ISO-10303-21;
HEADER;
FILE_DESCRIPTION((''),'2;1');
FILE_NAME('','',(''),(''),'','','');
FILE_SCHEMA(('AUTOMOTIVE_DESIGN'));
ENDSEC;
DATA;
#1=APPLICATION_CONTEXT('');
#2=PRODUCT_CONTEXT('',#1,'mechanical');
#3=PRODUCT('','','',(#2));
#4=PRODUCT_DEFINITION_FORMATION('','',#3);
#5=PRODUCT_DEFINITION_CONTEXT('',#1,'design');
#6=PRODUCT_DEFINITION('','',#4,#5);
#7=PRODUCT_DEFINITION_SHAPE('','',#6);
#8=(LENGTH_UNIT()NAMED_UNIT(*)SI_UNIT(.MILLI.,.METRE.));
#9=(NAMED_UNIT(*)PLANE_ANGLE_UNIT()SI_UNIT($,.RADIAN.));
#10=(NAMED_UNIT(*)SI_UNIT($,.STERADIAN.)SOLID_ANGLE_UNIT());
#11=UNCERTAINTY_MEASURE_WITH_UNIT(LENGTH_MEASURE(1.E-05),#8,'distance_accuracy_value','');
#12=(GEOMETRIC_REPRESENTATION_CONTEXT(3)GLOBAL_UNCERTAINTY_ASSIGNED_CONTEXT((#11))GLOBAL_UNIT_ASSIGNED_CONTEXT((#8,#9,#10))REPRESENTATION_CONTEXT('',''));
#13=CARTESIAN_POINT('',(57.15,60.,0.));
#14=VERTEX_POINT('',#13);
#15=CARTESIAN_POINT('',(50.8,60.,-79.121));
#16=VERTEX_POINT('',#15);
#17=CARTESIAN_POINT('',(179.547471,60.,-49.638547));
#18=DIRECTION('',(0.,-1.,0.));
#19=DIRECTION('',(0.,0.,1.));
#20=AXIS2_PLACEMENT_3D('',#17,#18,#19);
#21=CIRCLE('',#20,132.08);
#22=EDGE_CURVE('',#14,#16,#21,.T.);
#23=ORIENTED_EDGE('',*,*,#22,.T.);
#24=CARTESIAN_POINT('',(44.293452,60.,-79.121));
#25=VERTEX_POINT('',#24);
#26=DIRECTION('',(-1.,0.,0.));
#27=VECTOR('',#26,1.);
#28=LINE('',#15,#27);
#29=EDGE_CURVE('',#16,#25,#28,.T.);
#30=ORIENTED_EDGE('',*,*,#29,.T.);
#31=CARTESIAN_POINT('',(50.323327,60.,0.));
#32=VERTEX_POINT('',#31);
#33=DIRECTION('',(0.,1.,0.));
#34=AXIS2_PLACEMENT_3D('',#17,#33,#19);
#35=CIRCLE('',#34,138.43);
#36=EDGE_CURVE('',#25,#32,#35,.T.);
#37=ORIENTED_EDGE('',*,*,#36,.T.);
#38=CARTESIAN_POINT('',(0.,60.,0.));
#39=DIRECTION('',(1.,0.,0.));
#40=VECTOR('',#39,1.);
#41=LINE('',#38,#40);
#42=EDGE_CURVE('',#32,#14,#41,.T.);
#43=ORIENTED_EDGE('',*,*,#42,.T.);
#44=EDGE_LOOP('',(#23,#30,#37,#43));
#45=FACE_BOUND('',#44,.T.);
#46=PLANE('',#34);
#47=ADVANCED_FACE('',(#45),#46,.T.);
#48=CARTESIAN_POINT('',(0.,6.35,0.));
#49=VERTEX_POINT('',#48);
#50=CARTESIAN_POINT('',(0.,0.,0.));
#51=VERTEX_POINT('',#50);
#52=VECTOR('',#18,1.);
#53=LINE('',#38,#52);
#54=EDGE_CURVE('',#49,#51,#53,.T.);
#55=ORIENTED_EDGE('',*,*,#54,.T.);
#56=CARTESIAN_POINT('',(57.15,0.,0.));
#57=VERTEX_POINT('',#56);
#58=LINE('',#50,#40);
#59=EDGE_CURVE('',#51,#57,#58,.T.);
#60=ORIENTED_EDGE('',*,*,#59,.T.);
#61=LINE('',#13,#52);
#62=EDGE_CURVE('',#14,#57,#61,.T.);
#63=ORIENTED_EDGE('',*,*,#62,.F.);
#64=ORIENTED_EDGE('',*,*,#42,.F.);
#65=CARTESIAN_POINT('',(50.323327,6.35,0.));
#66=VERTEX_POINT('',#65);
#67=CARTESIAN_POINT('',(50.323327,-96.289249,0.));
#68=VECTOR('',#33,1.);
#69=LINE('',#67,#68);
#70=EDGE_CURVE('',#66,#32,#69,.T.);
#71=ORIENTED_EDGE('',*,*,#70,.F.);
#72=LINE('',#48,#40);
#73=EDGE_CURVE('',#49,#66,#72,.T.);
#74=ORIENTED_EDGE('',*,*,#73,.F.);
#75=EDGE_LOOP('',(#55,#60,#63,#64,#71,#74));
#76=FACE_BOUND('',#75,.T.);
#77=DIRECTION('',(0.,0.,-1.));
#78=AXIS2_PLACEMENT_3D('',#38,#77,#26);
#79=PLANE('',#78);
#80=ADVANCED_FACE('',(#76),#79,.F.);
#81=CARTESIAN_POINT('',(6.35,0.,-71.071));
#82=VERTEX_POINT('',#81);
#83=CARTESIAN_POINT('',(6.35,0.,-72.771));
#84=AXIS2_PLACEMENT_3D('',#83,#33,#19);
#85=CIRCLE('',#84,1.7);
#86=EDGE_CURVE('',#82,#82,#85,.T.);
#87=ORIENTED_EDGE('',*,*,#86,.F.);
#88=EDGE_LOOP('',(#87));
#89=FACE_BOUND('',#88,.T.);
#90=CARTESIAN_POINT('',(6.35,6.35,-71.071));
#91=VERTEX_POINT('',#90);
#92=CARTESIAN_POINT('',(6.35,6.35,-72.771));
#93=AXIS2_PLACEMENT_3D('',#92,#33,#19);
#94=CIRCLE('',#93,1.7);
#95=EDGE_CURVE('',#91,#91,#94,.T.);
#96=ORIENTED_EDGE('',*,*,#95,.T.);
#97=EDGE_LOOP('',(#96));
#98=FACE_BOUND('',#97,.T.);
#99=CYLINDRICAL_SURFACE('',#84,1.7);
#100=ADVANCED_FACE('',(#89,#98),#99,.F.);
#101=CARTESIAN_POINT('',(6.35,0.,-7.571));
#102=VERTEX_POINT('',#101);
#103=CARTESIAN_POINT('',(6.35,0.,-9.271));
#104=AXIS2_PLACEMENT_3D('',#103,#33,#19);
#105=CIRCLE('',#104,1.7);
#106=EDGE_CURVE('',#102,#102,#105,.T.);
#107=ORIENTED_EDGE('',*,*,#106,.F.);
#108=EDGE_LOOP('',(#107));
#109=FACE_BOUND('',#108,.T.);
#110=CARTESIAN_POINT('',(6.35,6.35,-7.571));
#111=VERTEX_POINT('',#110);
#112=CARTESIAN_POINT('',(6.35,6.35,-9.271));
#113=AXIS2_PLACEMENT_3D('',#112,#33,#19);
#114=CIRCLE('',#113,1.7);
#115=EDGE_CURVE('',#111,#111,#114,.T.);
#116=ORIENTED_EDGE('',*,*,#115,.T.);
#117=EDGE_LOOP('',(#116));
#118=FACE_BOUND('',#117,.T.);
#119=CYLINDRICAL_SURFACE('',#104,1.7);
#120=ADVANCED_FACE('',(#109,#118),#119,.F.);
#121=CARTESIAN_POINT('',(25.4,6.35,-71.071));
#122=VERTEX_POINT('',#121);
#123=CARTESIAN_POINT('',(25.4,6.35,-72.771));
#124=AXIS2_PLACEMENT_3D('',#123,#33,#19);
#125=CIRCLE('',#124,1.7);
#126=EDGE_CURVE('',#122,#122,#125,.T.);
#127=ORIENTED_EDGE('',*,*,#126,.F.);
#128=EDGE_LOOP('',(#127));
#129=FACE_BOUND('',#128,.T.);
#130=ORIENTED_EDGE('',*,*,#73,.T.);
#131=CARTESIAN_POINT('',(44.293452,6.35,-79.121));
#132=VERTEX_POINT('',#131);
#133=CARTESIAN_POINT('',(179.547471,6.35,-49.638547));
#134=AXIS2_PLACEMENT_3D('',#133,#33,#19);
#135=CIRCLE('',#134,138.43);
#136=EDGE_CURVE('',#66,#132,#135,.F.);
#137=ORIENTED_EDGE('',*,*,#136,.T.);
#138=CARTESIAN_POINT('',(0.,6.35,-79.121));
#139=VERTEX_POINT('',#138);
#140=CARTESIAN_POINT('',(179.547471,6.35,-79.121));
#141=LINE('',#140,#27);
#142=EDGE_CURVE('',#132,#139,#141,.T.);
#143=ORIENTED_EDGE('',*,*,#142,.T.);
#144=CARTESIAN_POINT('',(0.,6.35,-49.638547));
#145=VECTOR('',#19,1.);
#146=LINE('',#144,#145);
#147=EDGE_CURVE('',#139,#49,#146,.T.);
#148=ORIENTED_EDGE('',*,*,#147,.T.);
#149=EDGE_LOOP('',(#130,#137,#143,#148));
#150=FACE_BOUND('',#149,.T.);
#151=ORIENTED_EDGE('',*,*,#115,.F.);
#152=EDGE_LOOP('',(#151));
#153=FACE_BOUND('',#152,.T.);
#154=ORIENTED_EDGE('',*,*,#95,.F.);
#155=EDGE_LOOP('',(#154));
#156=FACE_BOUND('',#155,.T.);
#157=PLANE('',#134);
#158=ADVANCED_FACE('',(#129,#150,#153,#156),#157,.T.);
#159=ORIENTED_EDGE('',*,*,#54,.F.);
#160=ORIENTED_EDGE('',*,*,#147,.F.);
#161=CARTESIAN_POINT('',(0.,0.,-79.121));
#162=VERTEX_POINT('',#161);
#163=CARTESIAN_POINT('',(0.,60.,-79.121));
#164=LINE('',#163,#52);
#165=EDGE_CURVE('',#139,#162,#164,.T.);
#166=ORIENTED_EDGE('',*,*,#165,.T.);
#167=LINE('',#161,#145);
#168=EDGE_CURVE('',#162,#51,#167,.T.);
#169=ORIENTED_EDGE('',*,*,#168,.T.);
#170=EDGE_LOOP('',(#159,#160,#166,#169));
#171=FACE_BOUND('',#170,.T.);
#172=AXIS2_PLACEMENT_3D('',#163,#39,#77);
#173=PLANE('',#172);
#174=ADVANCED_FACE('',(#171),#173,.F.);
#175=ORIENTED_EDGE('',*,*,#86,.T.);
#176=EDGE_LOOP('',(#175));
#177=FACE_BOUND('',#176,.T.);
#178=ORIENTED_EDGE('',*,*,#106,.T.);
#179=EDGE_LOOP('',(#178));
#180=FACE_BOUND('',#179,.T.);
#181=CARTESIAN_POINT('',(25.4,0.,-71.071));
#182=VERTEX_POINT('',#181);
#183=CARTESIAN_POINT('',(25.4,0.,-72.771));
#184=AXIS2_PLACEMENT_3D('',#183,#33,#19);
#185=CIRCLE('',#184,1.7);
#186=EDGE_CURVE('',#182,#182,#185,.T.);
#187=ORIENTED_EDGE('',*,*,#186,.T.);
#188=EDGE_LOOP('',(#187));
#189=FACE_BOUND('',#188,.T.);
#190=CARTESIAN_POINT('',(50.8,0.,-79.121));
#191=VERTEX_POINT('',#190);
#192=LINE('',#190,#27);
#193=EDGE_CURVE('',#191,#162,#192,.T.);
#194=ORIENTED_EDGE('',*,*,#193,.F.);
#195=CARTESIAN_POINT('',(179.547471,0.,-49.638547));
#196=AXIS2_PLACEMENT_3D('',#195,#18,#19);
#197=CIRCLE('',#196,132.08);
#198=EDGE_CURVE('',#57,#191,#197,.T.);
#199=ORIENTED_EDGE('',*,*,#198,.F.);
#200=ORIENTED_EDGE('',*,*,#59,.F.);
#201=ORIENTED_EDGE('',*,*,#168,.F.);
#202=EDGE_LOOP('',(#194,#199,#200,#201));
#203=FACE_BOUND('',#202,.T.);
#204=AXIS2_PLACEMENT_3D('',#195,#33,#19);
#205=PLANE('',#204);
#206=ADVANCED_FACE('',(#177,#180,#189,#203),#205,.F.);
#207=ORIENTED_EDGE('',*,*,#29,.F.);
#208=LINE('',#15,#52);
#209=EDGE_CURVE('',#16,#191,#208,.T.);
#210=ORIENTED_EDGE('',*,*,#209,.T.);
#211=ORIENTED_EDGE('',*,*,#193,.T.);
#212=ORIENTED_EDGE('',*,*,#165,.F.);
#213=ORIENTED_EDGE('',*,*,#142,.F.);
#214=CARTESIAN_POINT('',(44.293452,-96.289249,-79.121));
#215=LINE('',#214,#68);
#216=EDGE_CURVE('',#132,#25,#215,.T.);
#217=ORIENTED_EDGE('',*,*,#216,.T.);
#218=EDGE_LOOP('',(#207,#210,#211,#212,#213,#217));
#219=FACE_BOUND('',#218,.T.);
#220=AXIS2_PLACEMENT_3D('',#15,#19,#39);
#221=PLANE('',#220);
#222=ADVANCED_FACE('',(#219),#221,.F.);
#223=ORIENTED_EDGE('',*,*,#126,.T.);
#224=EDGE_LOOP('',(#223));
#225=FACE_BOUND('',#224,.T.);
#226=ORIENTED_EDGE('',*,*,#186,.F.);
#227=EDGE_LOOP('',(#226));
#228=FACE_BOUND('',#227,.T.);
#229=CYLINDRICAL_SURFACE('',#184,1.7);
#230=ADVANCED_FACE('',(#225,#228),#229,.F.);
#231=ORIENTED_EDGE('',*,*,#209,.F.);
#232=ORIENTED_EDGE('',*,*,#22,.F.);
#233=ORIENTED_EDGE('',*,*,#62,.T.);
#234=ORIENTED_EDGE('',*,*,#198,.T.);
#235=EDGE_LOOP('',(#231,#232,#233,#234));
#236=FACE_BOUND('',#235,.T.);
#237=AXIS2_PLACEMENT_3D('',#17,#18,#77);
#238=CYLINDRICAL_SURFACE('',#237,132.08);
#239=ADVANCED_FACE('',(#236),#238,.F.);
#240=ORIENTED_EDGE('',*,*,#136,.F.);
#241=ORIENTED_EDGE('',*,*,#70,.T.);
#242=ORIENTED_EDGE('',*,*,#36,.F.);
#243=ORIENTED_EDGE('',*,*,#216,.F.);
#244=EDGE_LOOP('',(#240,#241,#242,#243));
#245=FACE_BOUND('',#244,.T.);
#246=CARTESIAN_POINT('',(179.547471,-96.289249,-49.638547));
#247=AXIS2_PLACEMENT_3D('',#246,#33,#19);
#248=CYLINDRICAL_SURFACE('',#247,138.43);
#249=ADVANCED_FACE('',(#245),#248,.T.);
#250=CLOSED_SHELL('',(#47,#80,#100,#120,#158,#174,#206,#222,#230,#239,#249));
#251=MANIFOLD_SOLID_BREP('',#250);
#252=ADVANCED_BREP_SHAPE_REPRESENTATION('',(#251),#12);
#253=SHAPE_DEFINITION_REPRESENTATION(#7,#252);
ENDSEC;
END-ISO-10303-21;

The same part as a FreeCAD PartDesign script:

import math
import FreeCAD as App
import Part
import Sketcher
Q = App.Units.Quantity

doc = App.newDocument("Part")
body = doc.addObject("PartDesign::Body", "Body")

# Sketch on XZ plane
sketch1 = body.newObject("Sketcher::SketchObject", "Sketch")
sketch1.AttachmentSupport = (doc.getObject("XZ_Plane"), [""])
sketch1.MapMode = "FlatFace"
sketch1.addGeometry(Part.LineSegment(App.Vector(51, -79, 0), App.Vector(0, -79, 0)), False)
sketch1.addGeometry(Part.LineSegment(App.Vector(0, -79, 0), App.Vector(0, 0, 0)), False)
sketch1.addGeometry(Part.LineSegment(App.Vector(0, 0, 0), App.Vector(57, 0, 0)), False)
sketch1.addGeometry(Part.ArcOfCircle(Part.Circle(App.Vector(180, -50, 0), App.Vector(0, 0, 1), 132), math.radians(158), math.radians(193)), False)
sketch1.addConstraint(Sketcher.Constraint("Coincident", 0, 2, 1, 1))
sketch1.addConstraint(Sketcher.Constraint("Coincident", 1, 2, 2, 1))
sketch1.addConstraint(Sketcher.Constraint("Coincident", 2, 2, 3, 1))
sketch1.addConstraint(Sketcher.Constraint("Coincident", 3, 2, 0, 1))
sketch1.addConstraint(Sketcher.Constraint("Horizontal", 0))
sketch1.addConstraint(Sketcher.Constraint("Vertical", 1))
sketch1.addConstraint(Sketcher.Constraint("Horizontal", 2))
sketch1.addConstraint(Sketcher.Constraint("Coincident", 1, 2, -1, 1))
sketch1.addConstraint(Sketcher.Constraint("Radius", 3, Q("5.2 in")))
sketch1.addConstraint(Sketcher.Constraint("DistanceX", 0, 2, 0, 1, Q("2 in")))
sketch1.addConstraint(Sketcher.Constraint("DistanceX", 2, 1, 2, 2, Q("2.25 in")))
sketch1.addConstraint(Sketcher.Constraint("DistanceY", 1, 1, 1, 2, Q("3.115 in")))
pad1 = body.newObject("PartDesign::Pad", "Pad")
pad1.Profile = sketch1
pad1.Length = 60
pad1.Reversed = True

# Sketch on XZ plane
sketch2 = body.newObject("Sketcher::SketchObject", "Sketch001")
sketch2.AttachmentSupport = (doc.getObject("XZ_Plane"), [""])
sketch2.MapMode = "FlatFace"
sketch2.AttachmentOffset = App.Placement(App.Vector(0, 0, -60), App.Rotation())
sketch2.addGeometry(Part.LineSegment(App.Vector(0, 0, 0), App.Vector(51, 2, 0)), False)
sketch2.addGeometry(Part.ArcOfCircle(Part.Circle(App.Vector(180, -50, 0), App.Vector(0, 0, 1), 138), math.radians(158), math.radians(192)), False)
sketch2.addGeometry(Part.LineSegment(App.Vector(44, -79, 0), App.Vector(0, -79, 0)), False)
sketch2.addGeometry(Part.LineSegment(App.Vector(0, -79, 0), App.Vector(0, 0, 0)), False)
sketch2.addConstraint(Sketcher.Constraint("Coincident", 0, 2, 1, 1))
sketch2.addConstraint(Sketcher.Constraint("Coincident", 1, 2, 2, 1))
sketch2.addConstraint(Sketcher.Constraint("Coincident", 2, 2, 3, 1))
sketch2.addConstraint(Sketcher.Constraint("Coincident", 3, 2, 0, 1))
sketch2.addConstraint(Sketcher.Constraint("Horizontal", 2))
sketch2.addConstraint(Sketcher.Constraint("Vertical", 3))
sketch2.addConstraint(Sketcher.Constraint("Coincident", 3, 2, -1, 1))
sketch2.addConstraint(Sketcher.Constraint("Radius", 1, Q("5.45 in")))
sketch2.addConstraint(Sketcher.Constraint("DistanceY", 3, 1, 3, 2, Q("3.115 in")))
sketch2.addConstraint(Sketcher.Constraint("DistanceX", 2, 2, 2, 1, Q("44.293452 mm")))
sketch2.addConstraint(Sketcher.Constraint("DistanceX", -1, 1, 1, 3, Q("179.547471 mm")))
sketch2.addConstraint(Sketcher.Constraint("DistanceY", -1, 1, 0, 2, Q("2.386469 mm")))
pocket1 = body.newObject("PartDesign::Pocket", "Pocket")
pocket1.Profile = sketch2
pocket1.Length = 53.65
pocket1.Reversed = True

# Sketch on XZ plane
sketch3 = body.newObject("Sketcher::SketchObject", "Sketch002")
sketch3.AttachmentSupport = (doc.getObject("XZ_Plane"), [""])
sketch3.MapMode = "FlatFace"
sketch3.AttachmentOffset = App.Placement(App.Vector(0, 0, -0.25 * 25.4), App.Rotation())
sketch3.addGeometry(Part.Circle(App.Vector(6.3, -72.8, 0), App.Vector(0, 0, 1), 1.7), False)
sketch3.addGeometry(Part.Circle(App.Vector(25.4, -72.8, 0), App.Vector(0, 0, 1), 1.7), False)
sketch3.addGeometry(Part.Circle(App.Vector(6.3, -9.3, 0), App.Vector(0, 0, 1), 1.7), False)
sketch3.addConstraint(Sketcher.Constraint("Equal", 0, 1))
sketch3.addConstraint(Sketcher.Constraint("Equal", 1, 2))
sketch3.addConstraint(Sketcher.Constraint("Horizontal", 0, 3, 1, 3))
sketch3.addConstraint(Sketcher.Constraint("Vertical", 0, 3, 2, 3))
sketch3.addConstraint(Sketcher.Constraint("DistanceX", -1, 1, 1, 3, Q("1 in")))
sketch3.addConstraint(Sketcher.Constraint("DistanceY", 0, 3, 2, 3, Q("2.5 in")))
sketch3.addConstraint(Sketcher.Constraint("Diameter", 0, Q("3.4 mm")))
sketch3.addConstraint(Sketcher.Constraint("DistanceX", -1, 1, 0, 3, Q("0.25 in")))
sketch3.addConstraint(Sketcher.Constraint("DistanceY", 0, 3, -1, 1, Q("2.865 in")))
pocket2 = body.newObject("PartDesign::Pocket", "Pocket001")
pocket2.Profile = sketch3
pocket2.Type = "ThroughAll"
pocket2.Reversed = True

doc.recompute()
